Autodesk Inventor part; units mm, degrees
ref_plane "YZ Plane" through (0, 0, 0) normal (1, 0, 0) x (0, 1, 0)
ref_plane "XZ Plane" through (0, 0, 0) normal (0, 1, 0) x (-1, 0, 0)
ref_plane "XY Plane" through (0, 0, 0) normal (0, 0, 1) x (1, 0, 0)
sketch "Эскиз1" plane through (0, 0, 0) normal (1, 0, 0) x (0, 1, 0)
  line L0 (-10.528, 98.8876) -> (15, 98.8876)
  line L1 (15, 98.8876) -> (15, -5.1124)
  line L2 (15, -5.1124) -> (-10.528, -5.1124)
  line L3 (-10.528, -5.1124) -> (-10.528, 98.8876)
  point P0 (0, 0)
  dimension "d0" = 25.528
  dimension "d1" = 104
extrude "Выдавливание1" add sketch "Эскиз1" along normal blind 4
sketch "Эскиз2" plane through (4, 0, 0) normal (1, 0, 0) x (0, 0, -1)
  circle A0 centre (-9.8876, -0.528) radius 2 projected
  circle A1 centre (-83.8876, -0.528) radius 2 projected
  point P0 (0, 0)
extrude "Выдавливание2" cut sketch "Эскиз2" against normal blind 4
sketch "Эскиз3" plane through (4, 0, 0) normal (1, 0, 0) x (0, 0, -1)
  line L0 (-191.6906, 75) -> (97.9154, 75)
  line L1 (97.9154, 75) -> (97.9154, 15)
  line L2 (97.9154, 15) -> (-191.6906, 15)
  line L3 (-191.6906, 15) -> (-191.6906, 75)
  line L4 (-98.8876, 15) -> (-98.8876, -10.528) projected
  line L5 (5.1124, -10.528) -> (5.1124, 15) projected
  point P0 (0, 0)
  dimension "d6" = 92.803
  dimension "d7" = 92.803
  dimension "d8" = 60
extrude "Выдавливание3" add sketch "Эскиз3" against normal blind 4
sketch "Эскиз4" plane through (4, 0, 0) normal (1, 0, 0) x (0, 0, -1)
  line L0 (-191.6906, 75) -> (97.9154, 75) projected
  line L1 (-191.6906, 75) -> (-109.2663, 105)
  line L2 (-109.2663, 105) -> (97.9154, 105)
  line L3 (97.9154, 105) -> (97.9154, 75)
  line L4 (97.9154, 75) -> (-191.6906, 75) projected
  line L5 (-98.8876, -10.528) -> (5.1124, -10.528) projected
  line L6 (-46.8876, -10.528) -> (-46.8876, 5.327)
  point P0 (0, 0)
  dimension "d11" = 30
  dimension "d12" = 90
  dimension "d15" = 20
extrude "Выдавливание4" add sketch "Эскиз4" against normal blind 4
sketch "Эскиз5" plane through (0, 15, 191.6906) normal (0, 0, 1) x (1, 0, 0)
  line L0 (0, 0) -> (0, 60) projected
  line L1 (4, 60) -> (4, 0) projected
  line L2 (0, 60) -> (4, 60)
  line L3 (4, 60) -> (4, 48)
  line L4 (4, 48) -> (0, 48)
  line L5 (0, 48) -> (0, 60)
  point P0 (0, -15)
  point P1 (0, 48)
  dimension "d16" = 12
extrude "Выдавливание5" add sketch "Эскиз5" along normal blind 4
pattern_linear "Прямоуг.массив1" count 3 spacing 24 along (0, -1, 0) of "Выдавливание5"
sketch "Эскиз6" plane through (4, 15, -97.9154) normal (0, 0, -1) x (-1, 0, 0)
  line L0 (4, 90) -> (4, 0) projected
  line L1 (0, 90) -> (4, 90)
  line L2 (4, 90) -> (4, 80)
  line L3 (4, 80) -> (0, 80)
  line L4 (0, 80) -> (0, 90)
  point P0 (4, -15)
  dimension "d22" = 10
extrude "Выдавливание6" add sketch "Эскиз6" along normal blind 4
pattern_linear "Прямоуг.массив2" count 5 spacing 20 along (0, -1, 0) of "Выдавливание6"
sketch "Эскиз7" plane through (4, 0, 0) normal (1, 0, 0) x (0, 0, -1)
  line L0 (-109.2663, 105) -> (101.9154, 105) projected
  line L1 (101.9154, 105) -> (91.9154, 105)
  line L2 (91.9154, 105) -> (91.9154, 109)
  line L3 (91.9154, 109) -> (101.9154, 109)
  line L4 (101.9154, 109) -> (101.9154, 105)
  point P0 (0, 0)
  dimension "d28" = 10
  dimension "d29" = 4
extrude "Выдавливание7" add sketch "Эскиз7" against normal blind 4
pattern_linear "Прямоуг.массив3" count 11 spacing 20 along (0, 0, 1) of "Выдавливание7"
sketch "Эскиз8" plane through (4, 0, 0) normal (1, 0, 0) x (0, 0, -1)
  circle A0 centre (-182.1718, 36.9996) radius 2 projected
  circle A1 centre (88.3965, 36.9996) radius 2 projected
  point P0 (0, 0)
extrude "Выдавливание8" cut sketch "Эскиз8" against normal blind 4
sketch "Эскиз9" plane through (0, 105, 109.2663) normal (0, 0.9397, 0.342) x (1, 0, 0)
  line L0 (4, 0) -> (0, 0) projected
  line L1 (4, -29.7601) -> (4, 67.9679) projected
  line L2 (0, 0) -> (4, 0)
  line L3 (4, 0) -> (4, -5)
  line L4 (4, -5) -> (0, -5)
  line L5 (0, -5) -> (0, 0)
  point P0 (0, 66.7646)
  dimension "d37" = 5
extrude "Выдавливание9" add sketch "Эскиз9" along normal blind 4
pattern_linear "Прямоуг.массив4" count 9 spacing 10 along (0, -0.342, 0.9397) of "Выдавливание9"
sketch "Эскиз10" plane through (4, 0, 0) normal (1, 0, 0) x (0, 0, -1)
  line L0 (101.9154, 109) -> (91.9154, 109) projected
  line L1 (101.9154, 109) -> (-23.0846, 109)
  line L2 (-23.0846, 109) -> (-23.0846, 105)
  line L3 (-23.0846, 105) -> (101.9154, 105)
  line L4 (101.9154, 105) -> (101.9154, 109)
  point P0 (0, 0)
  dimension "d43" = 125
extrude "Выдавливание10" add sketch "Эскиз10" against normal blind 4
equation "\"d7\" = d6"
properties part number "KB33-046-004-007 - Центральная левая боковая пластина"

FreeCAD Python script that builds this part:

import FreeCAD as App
import Part
import Sketcher
from FreeCAD import Vector
Q = App.Units.Quantity


def add_polygon(sketch, points):
    """Adds a closed chain of lines whose ends are joined by coincident constraints."""
    first, n = sketch.GeometryCount, len(points)
    for a, b in zip(points, points[1:] + points[:1]):
        sketch.addGeometry(Part.LineSegment(App.Vector(*a, 0), App.Vector(*b, 0)), False)
    for i in range(n):
        sketch.addConstraint(Sketcher.Constraint("Coincident", first + i, 2, first + (i + 1) % n, 1))

doc = App.newDocument("Part")
params = doc.addObject("Spreadsheet::Sheet", "Params")
for row, (alias, value) in enumerate([
    ("sketch1_height", "104 mm"),
    ("pad1_length", "4 mm"),
    ("sketch2_diameter", "4 mm"),
    ("pocket1_length", "4 mm"),
    ("sketch3_width", "60 mm"),
    ("pad2_length", "4 mm"),
    ("sketch4_width", "30 mm"),
    ("pad3_length", "4 mm"),
    ("sketch5_height", "12 mm"),
    ("sketch5_width", "4 mm"),
    ("pad4_length", "4 mm"),
    ("linearpattern_pitch", "24 mm"),
    ("sketch6_height", "10 mm"),
    ("sketch6_width", "4 mm"),
    ("pad5_length", "4 mm"),
    ("linearpattern2_pitch", "20 mm"),
    ("sketch7_width", "4 mm"),
    ("sketch7_height", "10 mm"),
    ("pad6_length", "4 mm"),
    ("linearpattern3_pitch", "20 mm"),
    ("sketch8_diameter", "4 mm"),
    ("pocket2_length", "4 mm"),
    ("sketch9_height", "5 mm"),
    ("sketch9_width", "4 mm"),
    ("pad7_length", "4 mm"),
    ("linearpattern4_pitch", "10 mm"),
    ("sketch10_height", "125 mm"),
    ("sketch10_width", "4 mm"),
    ("pad8_length", "4 mm"),
], start=1):
    params.set(f"A{row}", alias)
    params.set(f"B{row}", "=" + value)
    params.setAlias(f"B{row}", alias)

body = doc.addObject("PartDesign::Body", "Body")

# Sketch on YZ plane
sketch1 = body.newObject("Sketcher::SketchObject", "Sketch")
sketch1.AttachmentSupport = (doc.getObject("YZ_Plane"), [""])
sketch1.MapMode = "FlatFace"
add_polygon(sketch1, [(15, 99), (-11, 99), (-11, -5), (15, -5)])  # lines 0-3
sketch1.addConstraint([
    Sketcher.Constraint("Horizontal", 0),
    Sketcher.Constraint("Vertical", 1),
    Sketcher.Constraint("Horizontal", 2),
    Sketcher.Constraint("Vertical", 3),
    Sketcher.Constraint("DistanceY", 1, 2, 1, 1, 104.0),
    Sketcher.Constraint("DistanceX", 0, 2, 0, 1, 25.528),
    Sketcher.Constraint("DistanceX", -1, 1, 2, 2, 15.0),
    Sketcher.Constraint("DistanceY", -1, 1, 0, 2, 98.8876),
])
sketch1.setExpression("Constraints[8]", "Params.sketch1_height")
pad1 = body.newObject("PartDesign::Pad", "Pad")
pad1.Profile = sketch1
pad1.setExpression("Length", "Params.pad1_length")

# Sketch on YZ plane
sketch2 = body.newObject("Sketcher::SketchObject", "Sketch001")
sketch2.AttachmentSupport = (doc.getObject("YZ_Plane"), [""])
sketch2.MapMode = "FlatFace"
sketch2.AttachmentOffset = App.Placement(Vector(0, 0, 4), App.Rotation())
sketch2.addGeometry([
    Part.Circle(Vector(-0.5, 9.9, 0), Vector(0, 0, 1), 2),
    Part.Circle(Vector(-0.5, 83.9, 0), Vector(0, 0, 1), 2),
], False)
sketch2.addConstraint([
    Sketcher.Constraint("Equal", 0, 1),
    Sketcher.Constraint("Vertical", 0, 3, 1, 3),
    Sketcher.Constraint("Diameter", 0, 4.0),
    Sketcher.Constraint("DistanceY", 0, 3, 1, 3, 74.0),
    Sketcher.Constraint("DistanceX", 0, 3, -1, 1, 0.528),
    Sketcher.Constraint("DistanceY", -1, 1, 0, 3, 9.8876),
])
sketch2.setExpression("Constraints[2]", "Params.sketch2_diameter")
pocket1 = body.newObject("PartDesign::Pocket", "Pocket")
pocket1.Profile = sketch2
pocket1.setExpression("Length", "Params.pocket1_length")

# Sketch on YZ plane
sketch3 = body.newObject("Sketcher::SketchObject", "Sketch002")
sketch3.AttachmentSupport = (doc.getObject("YZ_Plane"), [""])
sketch3.MapMode = "FlatFace"
sketch3.AttachmentOffset = App.Placement(Vector(0, 0, 4), App.Rotation())
add_polygon(sketch3, [(75, -98), (75, 192), (15, 192), (15, -98)])  # lines 0-3
sketch3.addConstraint([
    Sketcher.Constraint("Vertical", 0),
    Sketcher.Constraint("Horizontal", 1),
    Sketcher.Constraint("Vertical", 2),
    Sketcher.Constraint("Horizontal", 3),
    Sketcher.Constraint("DistanceX", 1, 2, 1, 1, 60.0),
    Sketcher.Constraint("DistanceX", -1, 1, 0, 2, 75.0),
    Sketcher.Constraint("DistanceY", 0, 1, 0, 2, 289.606),
    Sketcher.Constraint("DistanceY", -1, 1, 0, 2, 191.6906),
])
sketch3.setExpression("Constraints[8]", "Params.sketch3_width")
pad2 = body.newObject("PartDesign::Pad", "Pad001")
pad2.Profile = sketch3
pad2.setExpression("Length", "Params.pad2_length")
pad2.Reversed = True

# Sketch on YZ plane
sketch4 = body.newObject("Sketcher::SketchObject", "Sketch003")
sketch4.AttachmentSupport = (doc.getObject("YZ_Plane"), [""])
sketch4.MapMode = "FlatFace"
sketch4.AttachmentOffset = App.Placement(Vector(0, 0, 4), App.Rotation())
add_polygon(sketch4, [(105, 109), (75, 192), (75, -98), (105, -98)])  # lines 0-3
sketch4.addConstraint([
    Sketcher.Constraint("Vertical", 1),
    Sketcher.Constraint("Horizontal", 2),
    Sketcher.Constraint("Vertical", 3),
    Sketcher.Constraint("DistanceX", 2, 1, 2, 2, 30.0),
    Sketcher.Constraint("Angle", 0, Q("110 deg")),
    Sketcher.Constraint("DistanceX", -1, 1, 0, 2, 75.0),
    Sketcher.Constraint("DistanceY", 1, 2, 1, 1, 289.606),
    Sketcher.Constraint("DistanceY", -1, 1, 0, 2, 191.6906),
])
sketch4.setExpression("Constraints[7]", "Params.sketch4_width")
pad3 = body.newObject("PartDesign::Pad", "Pad002")
pad3.Profile = sketch4
pad3.setExpression("Length", "Params.pad3_length")
pad3.Reversed = True

# Sketch on XY plane
sketch5 = body.newObject("Sketcher::SketchObject", "Sketch004")
sketch5.AttachmentSupport = (doc.getObject("XY_Plane"), [""])
sketch5.MapMode = "FlatFace"
sketch5.AttachmentOffset = App.Placement(Vector(0, 0, 191.6906), App.Rotation())
add_polygon(sketch5, [(0, 75), (0, 63), (4, 63), (4, 75)])  # lines 0-3
sketch5.addConstraint([
    Sketcher.Constraint("Vertical", 0),
    Sketcher.Constraint("Horizontal", 1),
    Sketcher.Constraint("Vertical", 2),
    Sketcher.Constraint("Horizontal", 3),
    Sketcher.Constraint("PointOnObject", 0, 2, -2),
    Sketcher.Constraint("DistanceY", 0, 2, 0, 1, 12.0),
    Sketcher.Constraint("DistanceX", 1, 1, 1, 2, 4.0),
    Sketcher.Constraint("DistanceY", -1, 1, 0, 2, 63.0),
])
sketch5.setExpression("Constraints[9]", "Params.sketch5_height")
sketch5.setExpression("Constraints[10]", "Params.sketch5_width")
pad4 = body.newObject("PartDesign::Pad", "Pad003")
pad4.Profile = sketch5
pad4.setExpression("Length", "Params.pad4_length")
doc.recompute()

linearpattern = body.newObject("PartDesign::LinearPattern", "LinearPattern")
linearpattern.Originals = [pad4]
linearpattern.Direction = (doc.getObject("Y_Axis"), [""])
linearpattern.Mode = "offset"
linearpattern.setExpression("Offset", "Params.linearpattern_pitch")
linearpattern.Occurrences = 3
linearpattern.Reversed = True
body.Tip = linearpattern

# Sketch on XY plane
sketch6 = body.newObject("Sketcher::SketchObject", "Sketch005")
sketch6.AttachmentSupport = (doc.getObject("XY_Plane"), [""])
sketch6.MapMode = "FlatFace"
sketch6.AttachmentOffset = App.Placement(Vector(0, 0, -97.9154), App.Rotation())
add_polygon(sketch6, [(0, 95), (0, 105), (4, 105), (4, 95)])  # lines 0-3
sketch6.addConstraint([
    Sketcher.Constraint("Vertical", 0),
    Sketcher.Constraint("Horizontal", 1),
    Sketcher.Constraint("Vertical", 2),
    Sketcher.Constraint("Horizontal", 3),
    Sketcher.Constraint("PointOnObject", 0, 2, -2),
    Sketcher.Constraint("DistanceY", 0, 1, 0, 2, 10.0),
    Sketcher.Constraint("DistanceX", 1, 1, 1, 2, 4.0),
    Sketcher.Constraint("DistanceY", -1, 1, 0, 2, 105.0),
])
sketch6.setExpression("Constraints[9]", "Params.sketch6_height")
sketch6.setExpression("Constraints[10]", "Params.sketch6_width")
pad5 = body.newObject("PartDesign::Pad", "Pad004")
pad5.Profile = sketch6
pad5.setExpression("Length", "Params.pad5_length")
pad5.Reversed = True
doc.recompute()

linearpattern2 = body.newObject("PartDesign::LinearPattern", "LinearPattern001")
linearpattern2.Originals = [pad5]
linearpattern2.Direction = (doc.getObject("Y_Axis"), [""])
linearpattern2.Mode = "offset"
linearpattern2.setExpression("Offset", "Params.linearpattern2_pitch")
linearpattern2.Occurrences = 5
linearpattern2.Reversed = True
body.Tip = linearpattern2

# Sketch on YZ plane
sketch7 = body.newObject("Sketcher::SketchObject", "Sketch006")
sketch7.AttachmentSupport = (doc.getObject("YZ_Plane"), [""])
sketch7.MapMode = "FlatFace"
sketch7.AttachmentOffset = App.Placement(Vector(0, 0, 4), App.Rotation())
add_polygon(sketch7, [(109, -91.9), (105, -91.9), (105, -101.9), (109, -101.9)])  # lines 0-3
sketch7.addConstraint([
    Sketcher.Constraint("Horizontal", 0),
    Sketcher.Constraint("Vertical", 1),
    Sketcher.Constraint("Horizontal", 2),
    Sketcher.Constraint("Vertical", 3),
    Sketcher.Constraint("DistanceX", 0, 2, 0, 1, 4.0),
    Sketcher.Constraint("DistanceY", 1, 2, 1, 1, 10.0),
    Sketcher.Constraint("DistanceX", -1, 1, 0, 2, 105.0),
    Sketcher.Constraint("DistanceY", 0, 2, -1, 1, 91.9154),
])
sketch7.setExpression("Constraints[8]", "Params.sketch7_width")
sketch7.setExpression("Constraints[9]", "Params.sketch7_height")
pad6 = body.newObject("PartDesign::Pad", "Pad005")
pad6.Profile = sketch7
pad6.setExpression("Length", "Params.pad6_length")
pad6.Reversed = True
doc.recompute()

linearpattern3 = body.newObject("PartDesign::LinearPattern", "LinearPattern002")
linearpattern3.Originals = [pad6]
linearpattern3.Direction = (doc.getObject("Z_Axis"), [""])
linearpattern3.Mode = "offset"
linearpattern3.setExpression("Offset", "Params.linearpattern3_pitch")
linearpattern3.Occurrences = 11
body.Tip = linearpattern3

# Sketch on YZ plane
sketch8 = body.newObject("Sketcher::SketchObject", "Sketch007")
sketch8.AttachmentSupport = (doc.getObject("YZ_Plane"), [""])
sketch8.MapMode = "FlatFace"
sketch8.AttachmentOffset = App.Placement(Vector(0, 0, 4), App.Rotation())
sketch8.addGeometry([
    Part.Circle(Vector(37, 182.2, 0), Vector(0, 0, 1), 2),
    Part.Circle(Vector(37, -88.4, 0), Vector(0, 0, 1), 2),
], False)
sketch8.addConstraint([
    Sketcher.Constraint("Equal", 0, 1),
    Sketcher.Constraint("Vertical", 0, 3, 1, 3),
    Sketcher.Constraint("Diameter", 0, 4.0),
    Sketcher.Constraint("DistanceX", -1, 1, 0, 3, 36.9996),
    Sketcher.Constraint("DistanceY", -1, 1, 0, 3, 182.1718),
    Sketcher.Constraint("DistanceY", 1, 3, -1, 1, 88.3965),
])
sketch8.setExpression("Constraints[2]", "Params.sketch8_diameter")
pocket2 = body.newObject("PartDesign::Pocket", "Pocket001")
pocket2.Profile = sketch8
pocket2.setExpression("Length", "Params.pocket2_length")

# Sketch on an angled plane
sketch9 = body.newObject("Sketcher::SketchObject", "Sketch008")
sketch9.Placement = App.Placement(Vector(0, 105, 109.2663), App.Rotation(Vector(1, 0, 0), Vector(0, 0.342020143, -0.939692621), Vector(0, 0.939692621, 0.342020143), "ZXY"))
add_polygon(sketch9, [(4, -5), (4, 0), (0, 0), (0, -5)])  # lines 0-3
sketch9.addConstraint([
    Sketcher.Constraint("Vertical", 0),
    Sketcher.Constraint("Horizontal", 1),
    Sketcher.Constraint("Vertical", 2),
    Sketcher.Constraint("Horizontal", 3),
    Sketcher.Constraint("Coincident", 1, 2, -1, 1),
    Sketcher.Constraint("DistanceY", 0, 1, 0, 2, 5.0),
    Sketcher.Constraint("DistanceX", 1, 2, 1, 1, 4.0),
])
sketch9.setExpression("Constraints[9]", "Params.sketch9_height")
sketch9.setExpression("Constraints[10]", "Params.sketch9_width")
pad7 = body.newObject("PartDesign::Pad", "Pad006")
pad7.Profile = sketch9
pad7.setExpression("Length", "Params.pad7_length")
doc.recompute()

datumline = body.newObject("PartDesign::Line", "DatumLine")
datumline.Placement = App.Placement(Vector(0, 0, 0), App.Rotation(Vector(0, 0, 1), Vector(0, -0.342020143, 0.939692621)))
linearpattern4 = body.newObject("PartDesign::LinearPattern", "LinearPattern003")
linearpattern4.Originals = [pad7]
linearpattern4.Direction = (datumline, [""])
linearpattern4.Mode = "offset"
linearpattern4.setExpression("Offset", "Params.linearpattern4_pitch")
linearpattern4.Occurrences = 9
body.Tip = linearpattern4

# Sketch on YZ plane
sketch10 = body.newObject("Sketcher::SketchObject", "Sketch009")
sketch10.AttachmentSupport = (doc.getObject("YZ_Plane"), [""])
sketch10.MapMode = "FlatFace"
sketch10.AttachmentOffset = App.Placement(Vector(0, 0, 4), App.Rotation())
add_polygon(sketch10, [(105, -101.9), (109, -101.9), (109, 23.1), (105, 23.1)])  # lines 0-3
sketch10.addConstraint([
    Sketcher.Constraint("Horizontal", 0),
    Sketcher.Constraint("Vertical", 1),
    Sketcher.Constraint("Horizontal", 2),
    Sketcher.Constraint("Vertical", 3),
    Sketcher.Constraint("DistanceY", 1, 1, 1, 2, 125.0),
    Sketcher.Constraint("DistanceX", 0, 1, 0, 2, 4.0),
    Sketcher.Constraint("DistanceX", -1, 1, 0, 2, 109.0),
    Sketcher.Constraint("DistanceY", 0, 2, -1, 1, 101.9154),
])
sketch10.setExpression("Constraints[8]", "Params.sketch10_height")
sketch10.setExpression("Constraints[9]", "Params.sketch10_width")
pad8 = body.newObject("PartDesign::Pad", "Pad007")
pad8.Profile = sketch10
pad8.setExpression("Length", "Params.pad8_length")
pad8.Reversed = True

doc.recompute()
